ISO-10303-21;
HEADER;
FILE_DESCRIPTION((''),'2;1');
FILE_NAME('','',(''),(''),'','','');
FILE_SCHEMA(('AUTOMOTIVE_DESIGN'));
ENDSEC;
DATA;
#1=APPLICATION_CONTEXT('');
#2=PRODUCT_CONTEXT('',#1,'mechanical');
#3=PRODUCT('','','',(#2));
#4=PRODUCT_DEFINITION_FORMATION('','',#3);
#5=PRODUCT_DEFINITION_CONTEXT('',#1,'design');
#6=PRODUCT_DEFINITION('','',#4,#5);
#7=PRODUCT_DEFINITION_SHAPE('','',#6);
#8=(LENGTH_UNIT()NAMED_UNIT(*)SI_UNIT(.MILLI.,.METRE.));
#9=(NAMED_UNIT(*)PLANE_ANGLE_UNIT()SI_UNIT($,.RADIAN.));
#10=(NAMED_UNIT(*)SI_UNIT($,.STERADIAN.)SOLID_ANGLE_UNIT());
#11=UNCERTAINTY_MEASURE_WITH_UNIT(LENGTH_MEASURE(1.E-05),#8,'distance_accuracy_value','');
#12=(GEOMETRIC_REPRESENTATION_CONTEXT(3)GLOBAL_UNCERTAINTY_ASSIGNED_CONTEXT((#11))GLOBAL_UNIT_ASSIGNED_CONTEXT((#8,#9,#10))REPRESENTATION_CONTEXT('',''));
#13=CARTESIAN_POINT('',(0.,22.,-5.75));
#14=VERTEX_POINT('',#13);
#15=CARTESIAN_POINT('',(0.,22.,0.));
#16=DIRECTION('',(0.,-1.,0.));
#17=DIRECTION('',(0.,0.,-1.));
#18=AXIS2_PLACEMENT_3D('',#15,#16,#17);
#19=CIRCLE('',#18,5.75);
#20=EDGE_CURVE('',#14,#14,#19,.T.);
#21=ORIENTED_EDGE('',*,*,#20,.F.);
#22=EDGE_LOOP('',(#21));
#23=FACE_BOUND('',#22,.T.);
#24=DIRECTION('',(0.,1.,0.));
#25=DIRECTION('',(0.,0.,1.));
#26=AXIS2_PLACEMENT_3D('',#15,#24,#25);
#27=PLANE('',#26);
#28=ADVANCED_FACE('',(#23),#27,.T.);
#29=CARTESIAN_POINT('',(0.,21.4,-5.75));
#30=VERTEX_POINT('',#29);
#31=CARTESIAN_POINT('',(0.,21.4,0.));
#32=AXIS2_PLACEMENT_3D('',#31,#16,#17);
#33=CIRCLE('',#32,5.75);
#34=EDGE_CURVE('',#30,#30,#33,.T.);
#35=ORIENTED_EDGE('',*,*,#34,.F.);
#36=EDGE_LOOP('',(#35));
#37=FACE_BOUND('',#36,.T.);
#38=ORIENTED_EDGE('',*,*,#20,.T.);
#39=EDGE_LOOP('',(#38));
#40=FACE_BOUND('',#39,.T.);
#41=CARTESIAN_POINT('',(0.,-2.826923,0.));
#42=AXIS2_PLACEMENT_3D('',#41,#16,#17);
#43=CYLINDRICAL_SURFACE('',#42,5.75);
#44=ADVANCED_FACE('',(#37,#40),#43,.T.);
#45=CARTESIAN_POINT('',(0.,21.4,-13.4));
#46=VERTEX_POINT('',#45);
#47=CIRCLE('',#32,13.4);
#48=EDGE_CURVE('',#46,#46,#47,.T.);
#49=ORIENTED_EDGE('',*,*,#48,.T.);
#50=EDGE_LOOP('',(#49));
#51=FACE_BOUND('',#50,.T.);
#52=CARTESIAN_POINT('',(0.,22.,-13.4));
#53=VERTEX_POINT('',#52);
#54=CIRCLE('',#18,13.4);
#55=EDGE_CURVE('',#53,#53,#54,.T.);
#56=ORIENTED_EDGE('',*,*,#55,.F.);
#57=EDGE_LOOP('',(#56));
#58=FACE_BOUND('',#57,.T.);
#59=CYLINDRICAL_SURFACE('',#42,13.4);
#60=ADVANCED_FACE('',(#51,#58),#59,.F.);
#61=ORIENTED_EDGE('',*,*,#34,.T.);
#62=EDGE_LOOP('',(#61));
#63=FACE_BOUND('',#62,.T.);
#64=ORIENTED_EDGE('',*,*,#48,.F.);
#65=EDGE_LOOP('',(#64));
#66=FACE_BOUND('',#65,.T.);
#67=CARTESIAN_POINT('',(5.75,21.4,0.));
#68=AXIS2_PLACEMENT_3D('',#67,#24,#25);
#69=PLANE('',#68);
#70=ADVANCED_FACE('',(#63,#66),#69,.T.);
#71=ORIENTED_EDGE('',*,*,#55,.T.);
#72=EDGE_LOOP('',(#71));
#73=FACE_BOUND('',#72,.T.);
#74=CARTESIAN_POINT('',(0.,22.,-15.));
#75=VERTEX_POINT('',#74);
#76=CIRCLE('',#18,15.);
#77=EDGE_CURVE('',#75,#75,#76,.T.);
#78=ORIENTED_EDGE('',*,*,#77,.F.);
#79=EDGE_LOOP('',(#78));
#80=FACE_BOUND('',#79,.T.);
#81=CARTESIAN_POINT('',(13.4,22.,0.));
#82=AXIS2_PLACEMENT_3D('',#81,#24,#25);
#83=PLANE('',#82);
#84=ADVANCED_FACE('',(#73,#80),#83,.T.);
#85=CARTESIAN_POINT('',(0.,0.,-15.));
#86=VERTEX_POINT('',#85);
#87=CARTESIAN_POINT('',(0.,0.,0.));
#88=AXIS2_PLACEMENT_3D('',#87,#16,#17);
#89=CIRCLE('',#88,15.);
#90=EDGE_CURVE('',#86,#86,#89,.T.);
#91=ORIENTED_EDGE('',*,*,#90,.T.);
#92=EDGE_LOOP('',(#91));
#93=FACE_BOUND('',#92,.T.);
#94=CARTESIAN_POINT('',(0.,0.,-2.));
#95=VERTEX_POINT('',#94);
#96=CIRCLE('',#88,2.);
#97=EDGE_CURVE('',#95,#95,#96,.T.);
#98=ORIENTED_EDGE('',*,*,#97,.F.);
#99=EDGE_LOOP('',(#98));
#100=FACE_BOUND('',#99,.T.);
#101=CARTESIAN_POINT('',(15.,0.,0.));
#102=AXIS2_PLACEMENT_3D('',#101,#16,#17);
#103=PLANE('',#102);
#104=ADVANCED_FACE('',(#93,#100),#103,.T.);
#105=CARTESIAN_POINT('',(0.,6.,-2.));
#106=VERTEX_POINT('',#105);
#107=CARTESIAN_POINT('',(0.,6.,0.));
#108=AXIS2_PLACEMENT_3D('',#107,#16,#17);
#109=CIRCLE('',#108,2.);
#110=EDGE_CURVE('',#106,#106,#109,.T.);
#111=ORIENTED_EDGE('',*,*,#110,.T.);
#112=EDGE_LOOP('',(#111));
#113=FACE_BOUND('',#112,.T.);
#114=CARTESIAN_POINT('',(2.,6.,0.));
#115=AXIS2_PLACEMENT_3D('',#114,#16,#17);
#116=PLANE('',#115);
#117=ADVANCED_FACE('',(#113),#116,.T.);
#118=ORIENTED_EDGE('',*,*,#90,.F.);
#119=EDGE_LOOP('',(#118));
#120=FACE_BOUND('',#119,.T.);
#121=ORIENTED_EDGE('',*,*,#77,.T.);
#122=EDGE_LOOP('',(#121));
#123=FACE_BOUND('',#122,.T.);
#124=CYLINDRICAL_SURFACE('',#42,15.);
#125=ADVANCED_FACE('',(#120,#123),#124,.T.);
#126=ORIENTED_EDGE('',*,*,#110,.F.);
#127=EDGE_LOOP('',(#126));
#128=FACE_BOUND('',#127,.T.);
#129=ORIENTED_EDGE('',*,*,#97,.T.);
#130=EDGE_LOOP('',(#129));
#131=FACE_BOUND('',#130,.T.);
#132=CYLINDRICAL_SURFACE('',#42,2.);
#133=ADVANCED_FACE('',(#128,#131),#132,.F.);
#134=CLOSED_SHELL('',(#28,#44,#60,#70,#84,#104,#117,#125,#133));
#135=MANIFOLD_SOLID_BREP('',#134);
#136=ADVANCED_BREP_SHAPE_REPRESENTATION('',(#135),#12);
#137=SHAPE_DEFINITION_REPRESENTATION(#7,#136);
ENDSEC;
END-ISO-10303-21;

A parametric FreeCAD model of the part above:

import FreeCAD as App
import Part
import Sketcher
from FreeCAD import Vector
Q = App.Units.Quantity

doc = App.newDocument("Part")
body = doc.addObject("PartDesign::Body", "Body")

# Sketch on XY plane
sketch1 = body.newObject("Sketcher::SketchObject", "Sketch")
sketch1.AttachmentSupport = (doc.getObject("XY_Plane"), [""])
sketch1.MapMode = "FlatFace"
sketch1.addGeometry([
    Part.LineSegment(Vector(0, 22, 0), Vector(0, 6, 0)),  # 0
    Part.LineSegment(Vector(0, 6, 0), Vector(2, 6, 0)),  # 1
    Part.LineSegment(Vector(2, 6, 0), Vector(2, 0, 0)),  # 2
    Part.LineSegment(Vector(2, 0, 0), Vector(15, 0, 0)),  # 3
    Part.LineSegment(Vector(15, 0, 0), Vector(15, 22, 0)),  # 4
    Part.LineSegment(Vector(15, 22, 0), Vector(13.4, 22, 0)),  # 5
    Part.LineSegment(Vector(13.4, 22, 0), Vector(13.4, 21.4, 0)),  # 6
    Part.LineSegment(Vector(13.4, 21.4, 0), Vector(5.75, 21.4, 0)),  # 7
    Part.LineSegment(Vector(5.75, 21.4, 0), Vector(5.75, 22, 0)),  # 8
    Part.LineSegment(Vector(5.75, 22, 0), Vector(0, 22, 0)),  # 9
], False)
sketch1.addConstraint([
    Sketcher.Constraint("Coincident", 0, 2, 1, 1),
    Sketcher.Constraint("Coincident", 1, 2, 2, 1),
    Sketcher.Constraint("Coincident", 2, 2, 3, 1),
    Sketcher.Constraint("Coincident", 3, 2, 4, 1),
    Sketcher.Constraint("Coincident", 4, 2, 5, 1),
    Sketcher.Constraint("Coincident", 5, 2, 6, 1),
    Sketcher.Constraint("Coincident", 6, 2, 7, 1),
    Sketcher.Constraint("Coincident", 7, 2, 8, 1),
    Sketcher.Constraint("Coincident", 8, 2, 9, 1),
    Sketcher.Constraint("Coincident", 9, 2, 0, 1),
    Sketcher.Constraint("Vertical", 0),
    Sketcher.Constraint("Horizontal", 1),
    Sketcher.Constraint("Vertical", 2),
    Sketcher.Constraint("Horizontal", 3),
    Sketcher.Constraint("Vertical", 4),
    Sketcher.Constraint("Horizontal", 5),
    Sketcher.Constraint("Vertical", 6),
    Sketcher.Constraint("Horizontal", 7),
    Sketcher.Constraint("Vertical", 8),
    Sketcher.Constraint("Horizontal", 9),
    Sketcher.Constraint("PointOnObject", 0, 2, -2),
    Sketcher.Constraint("PointOnObject", 2, 2, -1),
    Sketcher.Constraint("Horizontal", 5, 2, 8, 2),
    Sketcher.Constraint("DistanceX", 1, 1, 1, 2, Q("2 mm")),
    Sketcher.Constraint("DistanceX", 3, 1, 3, 2, Q("13 mm")),
    Sketcher.Constraint("DistanceY", 0, 2, 0, 1, Q("16 mm")),
    Sketcher.Constraint("DistanceY", 2, 2, 2, 1, Q("6 mm")),
    Sketcher.Constraint("DistanceX", 5, 2, 5, 1, Q("1.6 mm")),
    Sketcher.Constraint("DistanceY", 6, 2, 6, 1, Q("0.6 mm")),
    Sketcher.Constraint("DistanceX", 7, 2, 7, 1, Q("7.65 mm")),
])
revolution = body.newObject("PartDesign::Revolution", "Revolution")
revolution.Profile = sketch1
revolution.ReferenceAxis = (sketch1, ["V_Axis"])
revolution.Angle = 360

doc.recompute()
